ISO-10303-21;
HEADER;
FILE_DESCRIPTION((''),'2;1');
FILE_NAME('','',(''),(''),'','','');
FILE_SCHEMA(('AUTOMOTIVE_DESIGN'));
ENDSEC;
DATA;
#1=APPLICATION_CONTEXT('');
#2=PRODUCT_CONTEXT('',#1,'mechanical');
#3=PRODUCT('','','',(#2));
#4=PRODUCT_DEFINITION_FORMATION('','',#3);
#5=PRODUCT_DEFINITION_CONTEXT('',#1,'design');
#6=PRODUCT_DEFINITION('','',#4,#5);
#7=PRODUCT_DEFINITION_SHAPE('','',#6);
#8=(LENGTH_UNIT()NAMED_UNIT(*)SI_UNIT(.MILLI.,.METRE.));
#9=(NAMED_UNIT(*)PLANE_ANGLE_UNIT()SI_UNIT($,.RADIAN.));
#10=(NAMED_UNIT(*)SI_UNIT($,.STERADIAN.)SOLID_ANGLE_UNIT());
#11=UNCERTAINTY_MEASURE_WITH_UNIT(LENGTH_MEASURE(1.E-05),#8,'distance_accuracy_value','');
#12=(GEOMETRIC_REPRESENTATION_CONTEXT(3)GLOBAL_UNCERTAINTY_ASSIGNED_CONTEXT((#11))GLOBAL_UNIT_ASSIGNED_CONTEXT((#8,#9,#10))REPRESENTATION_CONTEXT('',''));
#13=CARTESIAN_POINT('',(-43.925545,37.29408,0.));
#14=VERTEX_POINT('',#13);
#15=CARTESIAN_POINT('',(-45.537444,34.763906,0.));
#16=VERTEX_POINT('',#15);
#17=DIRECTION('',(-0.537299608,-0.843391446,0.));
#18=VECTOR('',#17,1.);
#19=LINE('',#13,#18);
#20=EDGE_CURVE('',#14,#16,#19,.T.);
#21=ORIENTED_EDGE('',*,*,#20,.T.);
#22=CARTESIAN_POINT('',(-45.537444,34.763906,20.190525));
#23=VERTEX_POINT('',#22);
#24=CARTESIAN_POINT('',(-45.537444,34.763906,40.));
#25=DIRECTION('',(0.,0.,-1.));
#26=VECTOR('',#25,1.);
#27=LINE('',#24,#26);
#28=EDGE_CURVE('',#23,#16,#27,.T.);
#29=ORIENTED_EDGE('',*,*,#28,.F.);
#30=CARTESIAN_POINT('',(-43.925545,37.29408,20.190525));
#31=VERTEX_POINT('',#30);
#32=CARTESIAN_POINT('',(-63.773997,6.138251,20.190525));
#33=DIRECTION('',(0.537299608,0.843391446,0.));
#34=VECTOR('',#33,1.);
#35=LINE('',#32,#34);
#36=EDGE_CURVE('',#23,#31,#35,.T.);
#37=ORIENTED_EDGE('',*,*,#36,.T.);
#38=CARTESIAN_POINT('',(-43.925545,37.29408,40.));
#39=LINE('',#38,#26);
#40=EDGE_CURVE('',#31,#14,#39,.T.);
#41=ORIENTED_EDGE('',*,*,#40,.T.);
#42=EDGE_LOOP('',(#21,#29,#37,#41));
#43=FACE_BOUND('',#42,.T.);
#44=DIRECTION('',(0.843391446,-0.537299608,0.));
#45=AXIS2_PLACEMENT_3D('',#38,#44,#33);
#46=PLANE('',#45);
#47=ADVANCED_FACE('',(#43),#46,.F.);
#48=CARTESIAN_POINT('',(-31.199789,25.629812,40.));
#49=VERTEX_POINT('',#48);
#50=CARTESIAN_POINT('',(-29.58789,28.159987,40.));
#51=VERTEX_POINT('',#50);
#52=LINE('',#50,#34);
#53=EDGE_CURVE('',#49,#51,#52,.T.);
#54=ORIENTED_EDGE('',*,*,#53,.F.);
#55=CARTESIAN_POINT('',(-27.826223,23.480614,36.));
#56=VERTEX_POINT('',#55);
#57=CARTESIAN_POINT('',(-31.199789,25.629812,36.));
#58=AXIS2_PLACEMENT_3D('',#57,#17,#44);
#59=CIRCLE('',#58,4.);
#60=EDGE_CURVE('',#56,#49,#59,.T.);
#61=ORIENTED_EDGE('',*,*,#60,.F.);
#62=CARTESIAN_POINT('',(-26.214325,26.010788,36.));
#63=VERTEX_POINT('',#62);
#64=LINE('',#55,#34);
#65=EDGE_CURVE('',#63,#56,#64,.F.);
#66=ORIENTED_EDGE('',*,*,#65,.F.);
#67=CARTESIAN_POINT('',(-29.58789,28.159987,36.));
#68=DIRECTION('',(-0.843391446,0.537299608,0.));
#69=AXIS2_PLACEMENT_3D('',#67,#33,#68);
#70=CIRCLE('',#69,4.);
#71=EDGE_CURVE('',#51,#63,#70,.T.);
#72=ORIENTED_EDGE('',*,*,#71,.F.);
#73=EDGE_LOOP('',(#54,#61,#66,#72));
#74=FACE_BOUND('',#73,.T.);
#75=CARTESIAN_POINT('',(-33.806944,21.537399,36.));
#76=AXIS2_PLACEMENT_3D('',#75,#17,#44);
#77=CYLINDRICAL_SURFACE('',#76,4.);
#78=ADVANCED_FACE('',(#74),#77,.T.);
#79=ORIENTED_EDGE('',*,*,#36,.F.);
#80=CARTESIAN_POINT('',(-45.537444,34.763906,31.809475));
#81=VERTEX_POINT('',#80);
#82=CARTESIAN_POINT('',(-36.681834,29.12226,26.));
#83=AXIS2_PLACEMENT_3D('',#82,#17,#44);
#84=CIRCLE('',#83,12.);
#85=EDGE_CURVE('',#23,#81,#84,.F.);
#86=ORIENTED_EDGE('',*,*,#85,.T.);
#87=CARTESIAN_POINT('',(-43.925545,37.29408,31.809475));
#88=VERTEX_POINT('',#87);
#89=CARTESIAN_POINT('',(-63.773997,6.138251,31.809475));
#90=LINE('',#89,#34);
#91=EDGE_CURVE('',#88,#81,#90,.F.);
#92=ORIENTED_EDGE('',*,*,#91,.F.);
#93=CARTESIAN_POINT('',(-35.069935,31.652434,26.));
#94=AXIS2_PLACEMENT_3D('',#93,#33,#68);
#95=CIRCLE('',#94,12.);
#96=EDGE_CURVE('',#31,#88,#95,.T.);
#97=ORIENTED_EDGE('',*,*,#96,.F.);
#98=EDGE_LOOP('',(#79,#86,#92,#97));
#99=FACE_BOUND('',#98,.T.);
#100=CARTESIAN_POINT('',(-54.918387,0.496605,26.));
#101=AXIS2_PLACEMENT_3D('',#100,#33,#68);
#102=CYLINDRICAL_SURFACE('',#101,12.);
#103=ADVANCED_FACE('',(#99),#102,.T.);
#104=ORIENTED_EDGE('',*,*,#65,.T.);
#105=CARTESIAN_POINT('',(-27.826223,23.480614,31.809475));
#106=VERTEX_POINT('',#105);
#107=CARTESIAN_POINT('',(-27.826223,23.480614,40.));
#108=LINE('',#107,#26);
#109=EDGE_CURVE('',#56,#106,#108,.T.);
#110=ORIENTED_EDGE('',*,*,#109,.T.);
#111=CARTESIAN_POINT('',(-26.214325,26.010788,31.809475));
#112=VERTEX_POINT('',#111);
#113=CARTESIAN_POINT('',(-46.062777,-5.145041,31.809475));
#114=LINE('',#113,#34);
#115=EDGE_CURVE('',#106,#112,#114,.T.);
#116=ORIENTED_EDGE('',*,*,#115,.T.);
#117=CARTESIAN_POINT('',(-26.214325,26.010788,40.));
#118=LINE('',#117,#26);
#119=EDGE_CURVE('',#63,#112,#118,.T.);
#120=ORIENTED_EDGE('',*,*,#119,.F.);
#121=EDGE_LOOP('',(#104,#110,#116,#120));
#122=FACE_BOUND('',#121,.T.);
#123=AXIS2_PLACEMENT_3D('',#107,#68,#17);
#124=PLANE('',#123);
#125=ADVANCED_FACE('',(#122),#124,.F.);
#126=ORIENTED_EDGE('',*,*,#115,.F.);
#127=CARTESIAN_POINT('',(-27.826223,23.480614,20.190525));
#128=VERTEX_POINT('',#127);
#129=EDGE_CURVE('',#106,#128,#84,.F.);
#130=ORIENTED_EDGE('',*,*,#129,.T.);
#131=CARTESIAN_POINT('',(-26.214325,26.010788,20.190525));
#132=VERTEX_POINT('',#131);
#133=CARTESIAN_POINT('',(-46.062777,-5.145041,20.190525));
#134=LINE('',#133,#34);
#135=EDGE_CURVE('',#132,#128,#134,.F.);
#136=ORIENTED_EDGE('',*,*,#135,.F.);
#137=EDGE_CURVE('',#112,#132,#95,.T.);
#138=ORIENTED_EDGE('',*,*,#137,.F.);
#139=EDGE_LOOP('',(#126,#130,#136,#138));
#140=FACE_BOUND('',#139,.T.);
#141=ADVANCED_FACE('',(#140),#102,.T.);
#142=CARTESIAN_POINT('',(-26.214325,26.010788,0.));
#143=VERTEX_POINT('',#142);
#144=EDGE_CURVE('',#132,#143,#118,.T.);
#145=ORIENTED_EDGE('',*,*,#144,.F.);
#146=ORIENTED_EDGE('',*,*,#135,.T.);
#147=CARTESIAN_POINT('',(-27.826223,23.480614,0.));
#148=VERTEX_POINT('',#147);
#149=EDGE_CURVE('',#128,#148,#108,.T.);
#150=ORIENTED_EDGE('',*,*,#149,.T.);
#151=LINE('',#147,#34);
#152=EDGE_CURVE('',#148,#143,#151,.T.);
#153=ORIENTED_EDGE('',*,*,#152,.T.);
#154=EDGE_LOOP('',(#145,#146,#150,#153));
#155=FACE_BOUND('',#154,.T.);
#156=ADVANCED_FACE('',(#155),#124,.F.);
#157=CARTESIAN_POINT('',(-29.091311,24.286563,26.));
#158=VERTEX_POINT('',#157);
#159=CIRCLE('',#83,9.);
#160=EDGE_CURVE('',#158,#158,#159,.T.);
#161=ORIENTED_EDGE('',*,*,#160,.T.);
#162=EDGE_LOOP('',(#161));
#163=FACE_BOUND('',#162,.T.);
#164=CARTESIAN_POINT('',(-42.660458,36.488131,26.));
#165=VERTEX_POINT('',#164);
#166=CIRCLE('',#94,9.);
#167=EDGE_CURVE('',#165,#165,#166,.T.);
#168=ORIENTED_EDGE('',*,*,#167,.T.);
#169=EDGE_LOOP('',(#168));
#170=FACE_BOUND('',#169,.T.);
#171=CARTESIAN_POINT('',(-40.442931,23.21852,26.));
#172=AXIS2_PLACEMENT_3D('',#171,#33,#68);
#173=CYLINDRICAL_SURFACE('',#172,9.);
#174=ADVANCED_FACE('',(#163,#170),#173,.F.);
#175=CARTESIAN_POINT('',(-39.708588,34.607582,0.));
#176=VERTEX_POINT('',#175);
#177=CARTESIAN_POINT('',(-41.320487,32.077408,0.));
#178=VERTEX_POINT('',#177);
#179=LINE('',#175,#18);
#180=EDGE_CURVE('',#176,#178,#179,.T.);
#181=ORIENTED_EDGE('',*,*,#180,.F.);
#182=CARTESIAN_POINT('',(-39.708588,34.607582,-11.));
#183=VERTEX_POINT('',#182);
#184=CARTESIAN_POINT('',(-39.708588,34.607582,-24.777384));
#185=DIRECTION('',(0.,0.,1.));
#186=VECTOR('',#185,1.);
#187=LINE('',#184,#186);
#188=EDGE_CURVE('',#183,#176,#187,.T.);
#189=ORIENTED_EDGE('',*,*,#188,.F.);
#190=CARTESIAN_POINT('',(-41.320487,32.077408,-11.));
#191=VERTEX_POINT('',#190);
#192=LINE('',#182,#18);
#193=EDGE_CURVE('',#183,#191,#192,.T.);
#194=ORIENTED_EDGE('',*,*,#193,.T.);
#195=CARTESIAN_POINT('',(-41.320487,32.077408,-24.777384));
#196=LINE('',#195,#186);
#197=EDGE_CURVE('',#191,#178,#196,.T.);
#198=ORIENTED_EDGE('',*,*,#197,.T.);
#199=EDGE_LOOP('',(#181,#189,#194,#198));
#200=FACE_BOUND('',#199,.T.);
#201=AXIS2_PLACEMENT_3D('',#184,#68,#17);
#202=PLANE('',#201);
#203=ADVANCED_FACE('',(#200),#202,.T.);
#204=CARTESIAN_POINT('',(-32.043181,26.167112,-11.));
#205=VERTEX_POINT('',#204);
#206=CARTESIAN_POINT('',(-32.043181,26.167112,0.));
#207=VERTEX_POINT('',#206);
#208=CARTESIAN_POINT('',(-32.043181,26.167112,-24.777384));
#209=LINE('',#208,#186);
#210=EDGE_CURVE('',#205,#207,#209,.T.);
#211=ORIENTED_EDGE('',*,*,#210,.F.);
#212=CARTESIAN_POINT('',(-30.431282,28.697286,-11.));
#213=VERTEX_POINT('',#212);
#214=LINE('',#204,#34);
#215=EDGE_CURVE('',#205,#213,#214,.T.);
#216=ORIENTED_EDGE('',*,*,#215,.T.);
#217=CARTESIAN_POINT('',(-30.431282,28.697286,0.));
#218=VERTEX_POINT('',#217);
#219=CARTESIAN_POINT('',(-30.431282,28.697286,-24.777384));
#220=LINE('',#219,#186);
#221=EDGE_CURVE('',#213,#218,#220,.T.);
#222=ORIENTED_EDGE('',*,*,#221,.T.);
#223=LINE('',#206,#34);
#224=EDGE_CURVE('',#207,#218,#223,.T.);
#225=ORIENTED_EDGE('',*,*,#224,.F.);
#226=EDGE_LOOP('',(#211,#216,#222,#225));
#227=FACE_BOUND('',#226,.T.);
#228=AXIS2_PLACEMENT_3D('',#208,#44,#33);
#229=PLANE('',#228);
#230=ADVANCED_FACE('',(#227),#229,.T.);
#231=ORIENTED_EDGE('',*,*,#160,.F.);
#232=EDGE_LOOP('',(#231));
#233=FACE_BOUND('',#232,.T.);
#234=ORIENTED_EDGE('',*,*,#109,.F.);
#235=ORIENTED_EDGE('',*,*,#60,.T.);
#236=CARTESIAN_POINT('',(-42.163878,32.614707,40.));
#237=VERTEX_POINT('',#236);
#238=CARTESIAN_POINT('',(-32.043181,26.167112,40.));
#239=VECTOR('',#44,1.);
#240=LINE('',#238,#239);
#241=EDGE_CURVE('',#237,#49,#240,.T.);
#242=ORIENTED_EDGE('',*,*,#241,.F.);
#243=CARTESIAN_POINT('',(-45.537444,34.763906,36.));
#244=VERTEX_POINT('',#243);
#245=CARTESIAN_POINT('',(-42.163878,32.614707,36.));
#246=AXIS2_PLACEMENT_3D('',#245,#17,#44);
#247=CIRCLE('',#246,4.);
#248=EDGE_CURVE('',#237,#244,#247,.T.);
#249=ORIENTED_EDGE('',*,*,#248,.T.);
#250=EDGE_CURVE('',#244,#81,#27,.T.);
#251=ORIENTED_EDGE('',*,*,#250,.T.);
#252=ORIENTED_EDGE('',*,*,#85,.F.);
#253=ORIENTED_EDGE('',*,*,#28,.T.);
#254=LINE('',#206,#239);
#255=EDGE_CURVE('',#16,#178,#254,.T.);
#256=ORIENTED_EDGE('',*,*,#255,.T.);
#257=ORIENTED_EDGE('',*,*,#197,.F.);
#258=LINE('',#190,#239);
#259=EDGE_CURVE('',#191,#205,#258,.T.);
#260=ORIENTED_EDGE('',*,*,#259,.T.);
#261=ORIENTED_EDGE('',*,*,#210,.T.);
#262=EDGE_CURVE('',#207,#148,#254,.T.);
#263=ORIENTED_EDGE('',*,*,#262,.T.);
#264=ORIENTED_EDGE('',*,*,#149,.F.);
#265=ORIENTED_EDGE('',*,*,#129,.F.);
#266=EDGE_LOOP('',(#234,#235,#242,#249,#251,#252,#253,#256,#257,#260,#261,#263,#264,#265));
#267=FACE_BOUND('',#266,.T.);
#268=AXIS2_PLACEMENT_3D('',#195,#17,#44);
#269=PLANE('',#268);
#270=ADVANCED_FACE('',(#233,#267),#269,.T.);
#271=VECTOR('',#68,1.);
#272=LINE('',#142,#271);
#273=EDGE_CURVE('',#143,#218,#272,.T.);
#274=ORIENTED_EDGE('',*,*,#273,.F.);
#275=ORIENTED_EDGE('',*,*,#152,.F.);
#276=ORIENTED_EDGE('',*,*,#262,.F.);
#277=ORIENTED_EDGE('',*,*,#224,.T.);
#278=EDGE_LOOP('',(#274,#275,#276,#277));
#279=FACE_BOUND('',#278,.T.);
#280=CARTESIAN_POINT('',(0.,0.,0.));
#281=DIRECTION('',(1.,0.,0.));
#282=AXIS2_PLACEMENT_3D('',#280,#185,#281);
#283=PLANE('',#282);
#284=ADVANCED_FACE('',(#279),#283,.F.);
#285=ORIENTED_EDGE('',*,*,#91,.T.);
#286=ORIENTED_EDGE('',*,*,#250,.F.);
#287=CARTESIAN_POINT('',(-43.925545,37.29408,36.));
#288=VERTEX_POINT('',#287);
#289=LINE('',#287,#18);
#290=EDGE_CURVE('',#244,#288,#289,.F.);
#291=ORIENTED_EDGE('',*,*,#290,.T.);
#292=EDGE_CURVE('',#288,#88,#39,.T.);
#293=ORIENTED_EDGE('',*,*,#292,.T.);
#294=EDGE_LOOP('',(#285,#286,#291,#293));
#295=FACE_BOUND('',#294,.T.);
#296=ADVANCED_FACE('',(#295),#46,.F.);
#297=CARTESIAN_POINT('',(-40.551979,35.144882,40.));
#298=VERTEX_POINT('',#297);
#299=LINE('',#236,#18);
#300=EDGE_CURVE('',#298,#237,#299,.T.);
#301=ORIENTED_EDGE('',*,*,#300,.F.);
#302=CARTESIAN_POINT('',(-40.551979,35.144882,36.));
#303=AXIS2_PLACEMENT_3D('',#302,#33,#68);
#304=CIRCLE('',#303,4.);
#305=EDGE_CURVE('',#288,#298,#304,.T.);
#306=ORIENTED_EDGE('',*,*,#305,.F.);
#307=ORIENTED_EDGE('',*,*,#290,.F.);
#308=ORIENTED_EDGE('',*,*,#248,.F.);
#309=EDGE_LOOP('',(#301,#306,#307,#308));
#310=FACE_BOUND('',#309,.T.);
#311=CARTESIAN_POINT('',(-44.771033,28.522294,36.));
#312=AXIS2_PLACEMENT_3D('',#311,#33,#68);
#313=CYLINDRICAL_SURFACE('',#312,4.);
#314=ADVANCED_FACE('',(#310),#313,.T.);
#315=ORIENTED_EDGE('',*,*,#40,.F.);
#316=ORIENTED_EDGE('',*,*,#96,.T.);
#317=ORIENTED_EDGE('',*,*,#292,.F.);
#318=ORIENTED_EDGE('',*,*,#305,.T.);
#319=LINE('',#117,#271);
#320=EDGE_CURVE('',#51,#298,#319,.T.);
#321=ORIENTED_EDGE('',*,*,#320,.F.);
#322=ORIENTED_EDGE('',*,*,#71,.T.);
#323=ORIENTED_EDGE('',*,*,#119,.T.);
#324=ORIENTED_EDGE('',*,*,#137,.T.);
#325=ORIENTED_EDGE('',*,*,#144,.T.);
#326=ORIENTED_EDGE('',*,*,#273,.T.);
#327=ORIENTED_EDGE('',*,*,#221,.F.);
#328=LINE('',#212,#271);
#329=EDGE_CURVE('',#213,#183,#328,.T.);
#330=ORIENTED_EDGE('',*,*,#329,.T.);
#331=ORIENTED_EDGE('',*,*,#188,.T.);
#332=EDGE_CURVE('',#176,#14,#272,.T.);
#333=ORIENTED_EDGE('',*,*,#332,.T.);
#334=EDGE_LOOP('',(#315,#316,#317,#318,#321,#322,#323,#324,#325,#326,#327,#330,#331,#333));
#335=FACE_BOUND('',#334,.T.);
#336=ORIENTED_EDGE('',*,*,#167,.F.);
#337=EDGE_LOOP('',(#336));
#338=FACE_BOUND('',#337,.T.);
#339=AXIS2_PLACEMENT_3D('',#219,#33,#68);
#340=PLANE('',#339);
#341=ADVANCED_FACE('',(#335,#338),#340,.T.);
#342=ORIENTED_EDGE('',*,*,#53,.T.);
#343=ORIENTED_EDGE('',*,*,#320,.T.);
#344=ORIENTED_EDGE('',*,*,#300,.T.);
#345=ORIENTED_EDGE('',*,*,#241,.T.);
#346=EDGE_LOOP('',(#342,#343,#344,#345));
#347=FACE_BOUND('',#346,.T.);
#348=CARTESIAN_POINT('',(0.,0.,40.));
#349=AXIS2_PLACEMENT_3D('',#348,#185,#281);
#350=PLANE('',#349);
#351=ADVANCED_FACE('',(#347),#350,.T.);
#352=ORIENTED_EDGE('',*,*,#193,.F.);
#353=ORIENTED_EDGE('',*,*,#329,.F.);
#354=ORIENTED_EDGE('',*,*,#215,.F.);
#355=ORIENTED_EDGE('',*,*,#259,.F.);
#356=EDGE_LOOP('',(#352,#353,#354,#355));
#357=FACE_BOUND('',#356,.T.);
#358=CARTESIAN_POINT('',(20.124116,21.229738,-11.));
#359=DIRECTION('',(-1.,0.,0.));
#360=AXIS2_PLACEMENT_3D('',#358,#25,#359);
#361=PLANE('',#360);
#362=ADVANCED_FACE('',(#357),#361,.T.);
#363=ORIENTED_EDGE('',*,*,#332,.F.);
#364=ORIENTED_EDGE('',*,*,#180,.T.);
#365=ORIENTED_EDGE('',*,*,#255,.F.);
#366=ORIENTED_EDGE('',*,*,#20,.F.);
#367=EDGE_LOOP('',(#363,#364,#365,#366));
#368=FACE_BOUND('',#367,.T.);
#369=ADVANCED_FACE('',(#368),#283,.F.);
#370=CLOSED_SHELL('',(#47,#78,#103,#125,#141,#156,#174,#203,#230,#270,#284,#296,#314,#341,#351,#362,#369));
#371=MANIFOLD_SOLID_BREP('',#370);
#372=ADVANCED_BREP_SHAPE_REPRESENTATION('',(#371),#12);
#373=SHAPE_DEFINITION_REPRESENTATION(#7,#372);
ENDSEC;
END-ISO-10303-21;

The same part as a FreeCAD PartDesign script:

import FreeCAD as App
import Part
import Sketcher

V = App.Vector
Q = App.Units.Quantity


def edges_at(feature, points):
    """Names of the edges that pass closest to the given points."""
    edges = feature.Shape.Edges
    near = lambda p: min(range(len(edges)), key=lambda i: edges[i].distToShape(Part.Vertex(*p))[0])
    return sorted({f"Edge{near(p) + 1}" for p in points})


def add_polygon(sketch, points):
    """Adds a closed chain of lines whose ends are joined by coincident constraints."""
    first, n = sketch.GeometryCount, len(points)
    for a, b in zip(points, points[1:] + points[:1]):
        sketch.addGeometry(Part.LineSegment(App.Vector(*a, 0), App.Vector(*b, 0)), False)
    for i in range(n):
        sketch.addConstraint(Sketcher.Constraint("Coincident", first + i, 2, first + (i + 1) % n, 1))

doc = App.newDocument("Part")
body = doc.addObject("PartDesign::Body", "Body")

sketch1 = doc.addObject("Sketcher::SketchObject", "Sketch")
body.addObject(sketch1)
sketch1.AttachmentSupport = (doc.XY_Plane, [""])
sketch1.MapMode = "FlatFace"
add_polygon(sketch1, [(-32, 26.2), (-30.4, 28.7), (-39.7, 34.6), (-41.3, 32.1)])
sketch1.addConstraint([
    Sketcher.Constraint("Perpendicular", 0, 1),
    Sketcher.Constraint("Perpendicular", 1, 2),
    Sketcher.Constraint("Perpendicular", 2, 3),
    Sketcher.Constraint("Distance", 0, Q("3 mm")),
    Sketcher.Constraint("Distance", 1, Q("11 mm")),
    Sketcher.Constraint("Angle", 0, Q("57.5 deg")),
    Sketcher.Constraint("DistanceX", 0, 2, -1, 1, Q("30.431282 mm")),
    Sketcher.Constraint("DistanceY", -1, 1, 0, 2, Q("28.697286 mm")),
])
pad1 = doc.addObject("PartDesign::Pad", "Pad")
body.addObject(pad1)
pad1.Profile = sketch1
pad1.Length = 11
pad1.Reversed = True

sketch2 = doc.addObject("Sketcher::SketchObject", "Sketch001")
body.addObject(sketch2)
sketch2.AttachmentSupport = (doc.XY_Plane, [""])
sketch2.MapMode = "FlatFace"
add_polygon(sketch2, [(-26.2, 26), (-43.9, 37.3), (-45.5, 34.8), (-32, 26.2), (-27.8, 23.5)])
sketch2.addConstraint([
    Sketcher.Constraint("Perpendicular", 0, 1),
    Sketcher.Constraint("Perpendicular", 1, 2),
    Sketcher.Constraint("Parallel", 2, 3),
    Sketcher.Constraint("Perpendicular", 3, 4),
    Sketcher.Constraint("Distance", 0, Q("21 mm")),
    Sketcher.Constraint("Distance", 1, Q("3 mm")),
    Sketcher.Constraint("Distance", 2, Q("16 mm")),
    Sketcher.Constraint("Angle", 0, Q("147.5 deg")),
    Sketcher.Constraint("DistanceY", -1, 1, 0, 2, Q("37.29408 mm")),
    Sketcher.Constraint("DistanceX", 2, 2, -1, 1, Q("32.043181 mm")),
])
pad2 = doc.addObject("PartDesign::Pad", "Pad001")
body.addObject(pad2)
pad2.Profile = sketch2
pad2.Length = 40

sketch3 = doc.addObject("Sketcher::SketchObject", "Sketch002")
body.addObject(sketch3)
sketch3.Placement = App.Placement(V(4.219054, 6.622588, 0), App.Rotation(V(0.843391446, -0.537299608, 0), V(0, 0, -1), V(0.537299608, 0.843391446, 0), "ZXY"))
sketch3.addGeometry([
    Part.Circle(V(-47, -26, 0), V(0, 0, 1), 12),
    Part.Circle(V(-47, -26, 0), V(0, 0, 1), 9),
], False)
sketch3.addConstraint([
    Sketcher.Constraint("Coincident", 1, 3, 0, 3),
    Sketcher.Constraint("Diameter", 0, Q("24 mm")),
    Sketcher.Constraint("Diameter", 1, Q("18 mm")),
    Sketcher.Constraint("DistanceY", 0, 3, -1, 1, Q("26 mm")),
    Sketcher.Constraint("DistanceX", 0, 3, -1, 1, Q("46.584524 mm")),
])
pad3 = doc.addObject("PartDesign::Pad", "Pad002")
body.addObject(pad3)
pad3.Profile = sketch3
pad3.Length = 3
pad3.Reversed = True

sketch4 = doc.addObject("Sketcher::SketchObject", "Sketch003")
body.addObject(sketch4)
sketch4.Placement = App.Placement(V(4.219054, 6.622588, 0), App.Rotation(V(0.843391446, -0.537299608, 0), V(0, 0, -1), V(0.537299608, 0.843391446, 0), "ZXY"))
sketch4.addGeometry(Part.Circle(V(-47, -26, 0), V(0, 0, 1), 9), False)
sketch4.addConstraint([
    Sketcher.Constraint("Diameter", 0, Q("18 mm")),
    Sketcher.Constraint("DistanceY", 0, 3, -1, 1, Q("26 mm")),
    Sketcher.Constraint("DistanceX", 0, 3, -1, 1, Q("46.584524 mm")),
])
pocket1 = doc.addObject("PartDesign::Pocket", "Pocket")
body.addObject(pocket1)
pocket1.Profile = sketch4
pocket1.Length = 10
doc.recompute()

fillet = doc.addObject("PartDesign::Fillet", "Fillet")
body.addObject(fillet)
fillet.Base = (pocket1, edges_at(pocket1, [(-27.02, 24.746, 40), (-44.731, 36.029, 40)]))
fillet.Radius = 4

doc.recompute()
